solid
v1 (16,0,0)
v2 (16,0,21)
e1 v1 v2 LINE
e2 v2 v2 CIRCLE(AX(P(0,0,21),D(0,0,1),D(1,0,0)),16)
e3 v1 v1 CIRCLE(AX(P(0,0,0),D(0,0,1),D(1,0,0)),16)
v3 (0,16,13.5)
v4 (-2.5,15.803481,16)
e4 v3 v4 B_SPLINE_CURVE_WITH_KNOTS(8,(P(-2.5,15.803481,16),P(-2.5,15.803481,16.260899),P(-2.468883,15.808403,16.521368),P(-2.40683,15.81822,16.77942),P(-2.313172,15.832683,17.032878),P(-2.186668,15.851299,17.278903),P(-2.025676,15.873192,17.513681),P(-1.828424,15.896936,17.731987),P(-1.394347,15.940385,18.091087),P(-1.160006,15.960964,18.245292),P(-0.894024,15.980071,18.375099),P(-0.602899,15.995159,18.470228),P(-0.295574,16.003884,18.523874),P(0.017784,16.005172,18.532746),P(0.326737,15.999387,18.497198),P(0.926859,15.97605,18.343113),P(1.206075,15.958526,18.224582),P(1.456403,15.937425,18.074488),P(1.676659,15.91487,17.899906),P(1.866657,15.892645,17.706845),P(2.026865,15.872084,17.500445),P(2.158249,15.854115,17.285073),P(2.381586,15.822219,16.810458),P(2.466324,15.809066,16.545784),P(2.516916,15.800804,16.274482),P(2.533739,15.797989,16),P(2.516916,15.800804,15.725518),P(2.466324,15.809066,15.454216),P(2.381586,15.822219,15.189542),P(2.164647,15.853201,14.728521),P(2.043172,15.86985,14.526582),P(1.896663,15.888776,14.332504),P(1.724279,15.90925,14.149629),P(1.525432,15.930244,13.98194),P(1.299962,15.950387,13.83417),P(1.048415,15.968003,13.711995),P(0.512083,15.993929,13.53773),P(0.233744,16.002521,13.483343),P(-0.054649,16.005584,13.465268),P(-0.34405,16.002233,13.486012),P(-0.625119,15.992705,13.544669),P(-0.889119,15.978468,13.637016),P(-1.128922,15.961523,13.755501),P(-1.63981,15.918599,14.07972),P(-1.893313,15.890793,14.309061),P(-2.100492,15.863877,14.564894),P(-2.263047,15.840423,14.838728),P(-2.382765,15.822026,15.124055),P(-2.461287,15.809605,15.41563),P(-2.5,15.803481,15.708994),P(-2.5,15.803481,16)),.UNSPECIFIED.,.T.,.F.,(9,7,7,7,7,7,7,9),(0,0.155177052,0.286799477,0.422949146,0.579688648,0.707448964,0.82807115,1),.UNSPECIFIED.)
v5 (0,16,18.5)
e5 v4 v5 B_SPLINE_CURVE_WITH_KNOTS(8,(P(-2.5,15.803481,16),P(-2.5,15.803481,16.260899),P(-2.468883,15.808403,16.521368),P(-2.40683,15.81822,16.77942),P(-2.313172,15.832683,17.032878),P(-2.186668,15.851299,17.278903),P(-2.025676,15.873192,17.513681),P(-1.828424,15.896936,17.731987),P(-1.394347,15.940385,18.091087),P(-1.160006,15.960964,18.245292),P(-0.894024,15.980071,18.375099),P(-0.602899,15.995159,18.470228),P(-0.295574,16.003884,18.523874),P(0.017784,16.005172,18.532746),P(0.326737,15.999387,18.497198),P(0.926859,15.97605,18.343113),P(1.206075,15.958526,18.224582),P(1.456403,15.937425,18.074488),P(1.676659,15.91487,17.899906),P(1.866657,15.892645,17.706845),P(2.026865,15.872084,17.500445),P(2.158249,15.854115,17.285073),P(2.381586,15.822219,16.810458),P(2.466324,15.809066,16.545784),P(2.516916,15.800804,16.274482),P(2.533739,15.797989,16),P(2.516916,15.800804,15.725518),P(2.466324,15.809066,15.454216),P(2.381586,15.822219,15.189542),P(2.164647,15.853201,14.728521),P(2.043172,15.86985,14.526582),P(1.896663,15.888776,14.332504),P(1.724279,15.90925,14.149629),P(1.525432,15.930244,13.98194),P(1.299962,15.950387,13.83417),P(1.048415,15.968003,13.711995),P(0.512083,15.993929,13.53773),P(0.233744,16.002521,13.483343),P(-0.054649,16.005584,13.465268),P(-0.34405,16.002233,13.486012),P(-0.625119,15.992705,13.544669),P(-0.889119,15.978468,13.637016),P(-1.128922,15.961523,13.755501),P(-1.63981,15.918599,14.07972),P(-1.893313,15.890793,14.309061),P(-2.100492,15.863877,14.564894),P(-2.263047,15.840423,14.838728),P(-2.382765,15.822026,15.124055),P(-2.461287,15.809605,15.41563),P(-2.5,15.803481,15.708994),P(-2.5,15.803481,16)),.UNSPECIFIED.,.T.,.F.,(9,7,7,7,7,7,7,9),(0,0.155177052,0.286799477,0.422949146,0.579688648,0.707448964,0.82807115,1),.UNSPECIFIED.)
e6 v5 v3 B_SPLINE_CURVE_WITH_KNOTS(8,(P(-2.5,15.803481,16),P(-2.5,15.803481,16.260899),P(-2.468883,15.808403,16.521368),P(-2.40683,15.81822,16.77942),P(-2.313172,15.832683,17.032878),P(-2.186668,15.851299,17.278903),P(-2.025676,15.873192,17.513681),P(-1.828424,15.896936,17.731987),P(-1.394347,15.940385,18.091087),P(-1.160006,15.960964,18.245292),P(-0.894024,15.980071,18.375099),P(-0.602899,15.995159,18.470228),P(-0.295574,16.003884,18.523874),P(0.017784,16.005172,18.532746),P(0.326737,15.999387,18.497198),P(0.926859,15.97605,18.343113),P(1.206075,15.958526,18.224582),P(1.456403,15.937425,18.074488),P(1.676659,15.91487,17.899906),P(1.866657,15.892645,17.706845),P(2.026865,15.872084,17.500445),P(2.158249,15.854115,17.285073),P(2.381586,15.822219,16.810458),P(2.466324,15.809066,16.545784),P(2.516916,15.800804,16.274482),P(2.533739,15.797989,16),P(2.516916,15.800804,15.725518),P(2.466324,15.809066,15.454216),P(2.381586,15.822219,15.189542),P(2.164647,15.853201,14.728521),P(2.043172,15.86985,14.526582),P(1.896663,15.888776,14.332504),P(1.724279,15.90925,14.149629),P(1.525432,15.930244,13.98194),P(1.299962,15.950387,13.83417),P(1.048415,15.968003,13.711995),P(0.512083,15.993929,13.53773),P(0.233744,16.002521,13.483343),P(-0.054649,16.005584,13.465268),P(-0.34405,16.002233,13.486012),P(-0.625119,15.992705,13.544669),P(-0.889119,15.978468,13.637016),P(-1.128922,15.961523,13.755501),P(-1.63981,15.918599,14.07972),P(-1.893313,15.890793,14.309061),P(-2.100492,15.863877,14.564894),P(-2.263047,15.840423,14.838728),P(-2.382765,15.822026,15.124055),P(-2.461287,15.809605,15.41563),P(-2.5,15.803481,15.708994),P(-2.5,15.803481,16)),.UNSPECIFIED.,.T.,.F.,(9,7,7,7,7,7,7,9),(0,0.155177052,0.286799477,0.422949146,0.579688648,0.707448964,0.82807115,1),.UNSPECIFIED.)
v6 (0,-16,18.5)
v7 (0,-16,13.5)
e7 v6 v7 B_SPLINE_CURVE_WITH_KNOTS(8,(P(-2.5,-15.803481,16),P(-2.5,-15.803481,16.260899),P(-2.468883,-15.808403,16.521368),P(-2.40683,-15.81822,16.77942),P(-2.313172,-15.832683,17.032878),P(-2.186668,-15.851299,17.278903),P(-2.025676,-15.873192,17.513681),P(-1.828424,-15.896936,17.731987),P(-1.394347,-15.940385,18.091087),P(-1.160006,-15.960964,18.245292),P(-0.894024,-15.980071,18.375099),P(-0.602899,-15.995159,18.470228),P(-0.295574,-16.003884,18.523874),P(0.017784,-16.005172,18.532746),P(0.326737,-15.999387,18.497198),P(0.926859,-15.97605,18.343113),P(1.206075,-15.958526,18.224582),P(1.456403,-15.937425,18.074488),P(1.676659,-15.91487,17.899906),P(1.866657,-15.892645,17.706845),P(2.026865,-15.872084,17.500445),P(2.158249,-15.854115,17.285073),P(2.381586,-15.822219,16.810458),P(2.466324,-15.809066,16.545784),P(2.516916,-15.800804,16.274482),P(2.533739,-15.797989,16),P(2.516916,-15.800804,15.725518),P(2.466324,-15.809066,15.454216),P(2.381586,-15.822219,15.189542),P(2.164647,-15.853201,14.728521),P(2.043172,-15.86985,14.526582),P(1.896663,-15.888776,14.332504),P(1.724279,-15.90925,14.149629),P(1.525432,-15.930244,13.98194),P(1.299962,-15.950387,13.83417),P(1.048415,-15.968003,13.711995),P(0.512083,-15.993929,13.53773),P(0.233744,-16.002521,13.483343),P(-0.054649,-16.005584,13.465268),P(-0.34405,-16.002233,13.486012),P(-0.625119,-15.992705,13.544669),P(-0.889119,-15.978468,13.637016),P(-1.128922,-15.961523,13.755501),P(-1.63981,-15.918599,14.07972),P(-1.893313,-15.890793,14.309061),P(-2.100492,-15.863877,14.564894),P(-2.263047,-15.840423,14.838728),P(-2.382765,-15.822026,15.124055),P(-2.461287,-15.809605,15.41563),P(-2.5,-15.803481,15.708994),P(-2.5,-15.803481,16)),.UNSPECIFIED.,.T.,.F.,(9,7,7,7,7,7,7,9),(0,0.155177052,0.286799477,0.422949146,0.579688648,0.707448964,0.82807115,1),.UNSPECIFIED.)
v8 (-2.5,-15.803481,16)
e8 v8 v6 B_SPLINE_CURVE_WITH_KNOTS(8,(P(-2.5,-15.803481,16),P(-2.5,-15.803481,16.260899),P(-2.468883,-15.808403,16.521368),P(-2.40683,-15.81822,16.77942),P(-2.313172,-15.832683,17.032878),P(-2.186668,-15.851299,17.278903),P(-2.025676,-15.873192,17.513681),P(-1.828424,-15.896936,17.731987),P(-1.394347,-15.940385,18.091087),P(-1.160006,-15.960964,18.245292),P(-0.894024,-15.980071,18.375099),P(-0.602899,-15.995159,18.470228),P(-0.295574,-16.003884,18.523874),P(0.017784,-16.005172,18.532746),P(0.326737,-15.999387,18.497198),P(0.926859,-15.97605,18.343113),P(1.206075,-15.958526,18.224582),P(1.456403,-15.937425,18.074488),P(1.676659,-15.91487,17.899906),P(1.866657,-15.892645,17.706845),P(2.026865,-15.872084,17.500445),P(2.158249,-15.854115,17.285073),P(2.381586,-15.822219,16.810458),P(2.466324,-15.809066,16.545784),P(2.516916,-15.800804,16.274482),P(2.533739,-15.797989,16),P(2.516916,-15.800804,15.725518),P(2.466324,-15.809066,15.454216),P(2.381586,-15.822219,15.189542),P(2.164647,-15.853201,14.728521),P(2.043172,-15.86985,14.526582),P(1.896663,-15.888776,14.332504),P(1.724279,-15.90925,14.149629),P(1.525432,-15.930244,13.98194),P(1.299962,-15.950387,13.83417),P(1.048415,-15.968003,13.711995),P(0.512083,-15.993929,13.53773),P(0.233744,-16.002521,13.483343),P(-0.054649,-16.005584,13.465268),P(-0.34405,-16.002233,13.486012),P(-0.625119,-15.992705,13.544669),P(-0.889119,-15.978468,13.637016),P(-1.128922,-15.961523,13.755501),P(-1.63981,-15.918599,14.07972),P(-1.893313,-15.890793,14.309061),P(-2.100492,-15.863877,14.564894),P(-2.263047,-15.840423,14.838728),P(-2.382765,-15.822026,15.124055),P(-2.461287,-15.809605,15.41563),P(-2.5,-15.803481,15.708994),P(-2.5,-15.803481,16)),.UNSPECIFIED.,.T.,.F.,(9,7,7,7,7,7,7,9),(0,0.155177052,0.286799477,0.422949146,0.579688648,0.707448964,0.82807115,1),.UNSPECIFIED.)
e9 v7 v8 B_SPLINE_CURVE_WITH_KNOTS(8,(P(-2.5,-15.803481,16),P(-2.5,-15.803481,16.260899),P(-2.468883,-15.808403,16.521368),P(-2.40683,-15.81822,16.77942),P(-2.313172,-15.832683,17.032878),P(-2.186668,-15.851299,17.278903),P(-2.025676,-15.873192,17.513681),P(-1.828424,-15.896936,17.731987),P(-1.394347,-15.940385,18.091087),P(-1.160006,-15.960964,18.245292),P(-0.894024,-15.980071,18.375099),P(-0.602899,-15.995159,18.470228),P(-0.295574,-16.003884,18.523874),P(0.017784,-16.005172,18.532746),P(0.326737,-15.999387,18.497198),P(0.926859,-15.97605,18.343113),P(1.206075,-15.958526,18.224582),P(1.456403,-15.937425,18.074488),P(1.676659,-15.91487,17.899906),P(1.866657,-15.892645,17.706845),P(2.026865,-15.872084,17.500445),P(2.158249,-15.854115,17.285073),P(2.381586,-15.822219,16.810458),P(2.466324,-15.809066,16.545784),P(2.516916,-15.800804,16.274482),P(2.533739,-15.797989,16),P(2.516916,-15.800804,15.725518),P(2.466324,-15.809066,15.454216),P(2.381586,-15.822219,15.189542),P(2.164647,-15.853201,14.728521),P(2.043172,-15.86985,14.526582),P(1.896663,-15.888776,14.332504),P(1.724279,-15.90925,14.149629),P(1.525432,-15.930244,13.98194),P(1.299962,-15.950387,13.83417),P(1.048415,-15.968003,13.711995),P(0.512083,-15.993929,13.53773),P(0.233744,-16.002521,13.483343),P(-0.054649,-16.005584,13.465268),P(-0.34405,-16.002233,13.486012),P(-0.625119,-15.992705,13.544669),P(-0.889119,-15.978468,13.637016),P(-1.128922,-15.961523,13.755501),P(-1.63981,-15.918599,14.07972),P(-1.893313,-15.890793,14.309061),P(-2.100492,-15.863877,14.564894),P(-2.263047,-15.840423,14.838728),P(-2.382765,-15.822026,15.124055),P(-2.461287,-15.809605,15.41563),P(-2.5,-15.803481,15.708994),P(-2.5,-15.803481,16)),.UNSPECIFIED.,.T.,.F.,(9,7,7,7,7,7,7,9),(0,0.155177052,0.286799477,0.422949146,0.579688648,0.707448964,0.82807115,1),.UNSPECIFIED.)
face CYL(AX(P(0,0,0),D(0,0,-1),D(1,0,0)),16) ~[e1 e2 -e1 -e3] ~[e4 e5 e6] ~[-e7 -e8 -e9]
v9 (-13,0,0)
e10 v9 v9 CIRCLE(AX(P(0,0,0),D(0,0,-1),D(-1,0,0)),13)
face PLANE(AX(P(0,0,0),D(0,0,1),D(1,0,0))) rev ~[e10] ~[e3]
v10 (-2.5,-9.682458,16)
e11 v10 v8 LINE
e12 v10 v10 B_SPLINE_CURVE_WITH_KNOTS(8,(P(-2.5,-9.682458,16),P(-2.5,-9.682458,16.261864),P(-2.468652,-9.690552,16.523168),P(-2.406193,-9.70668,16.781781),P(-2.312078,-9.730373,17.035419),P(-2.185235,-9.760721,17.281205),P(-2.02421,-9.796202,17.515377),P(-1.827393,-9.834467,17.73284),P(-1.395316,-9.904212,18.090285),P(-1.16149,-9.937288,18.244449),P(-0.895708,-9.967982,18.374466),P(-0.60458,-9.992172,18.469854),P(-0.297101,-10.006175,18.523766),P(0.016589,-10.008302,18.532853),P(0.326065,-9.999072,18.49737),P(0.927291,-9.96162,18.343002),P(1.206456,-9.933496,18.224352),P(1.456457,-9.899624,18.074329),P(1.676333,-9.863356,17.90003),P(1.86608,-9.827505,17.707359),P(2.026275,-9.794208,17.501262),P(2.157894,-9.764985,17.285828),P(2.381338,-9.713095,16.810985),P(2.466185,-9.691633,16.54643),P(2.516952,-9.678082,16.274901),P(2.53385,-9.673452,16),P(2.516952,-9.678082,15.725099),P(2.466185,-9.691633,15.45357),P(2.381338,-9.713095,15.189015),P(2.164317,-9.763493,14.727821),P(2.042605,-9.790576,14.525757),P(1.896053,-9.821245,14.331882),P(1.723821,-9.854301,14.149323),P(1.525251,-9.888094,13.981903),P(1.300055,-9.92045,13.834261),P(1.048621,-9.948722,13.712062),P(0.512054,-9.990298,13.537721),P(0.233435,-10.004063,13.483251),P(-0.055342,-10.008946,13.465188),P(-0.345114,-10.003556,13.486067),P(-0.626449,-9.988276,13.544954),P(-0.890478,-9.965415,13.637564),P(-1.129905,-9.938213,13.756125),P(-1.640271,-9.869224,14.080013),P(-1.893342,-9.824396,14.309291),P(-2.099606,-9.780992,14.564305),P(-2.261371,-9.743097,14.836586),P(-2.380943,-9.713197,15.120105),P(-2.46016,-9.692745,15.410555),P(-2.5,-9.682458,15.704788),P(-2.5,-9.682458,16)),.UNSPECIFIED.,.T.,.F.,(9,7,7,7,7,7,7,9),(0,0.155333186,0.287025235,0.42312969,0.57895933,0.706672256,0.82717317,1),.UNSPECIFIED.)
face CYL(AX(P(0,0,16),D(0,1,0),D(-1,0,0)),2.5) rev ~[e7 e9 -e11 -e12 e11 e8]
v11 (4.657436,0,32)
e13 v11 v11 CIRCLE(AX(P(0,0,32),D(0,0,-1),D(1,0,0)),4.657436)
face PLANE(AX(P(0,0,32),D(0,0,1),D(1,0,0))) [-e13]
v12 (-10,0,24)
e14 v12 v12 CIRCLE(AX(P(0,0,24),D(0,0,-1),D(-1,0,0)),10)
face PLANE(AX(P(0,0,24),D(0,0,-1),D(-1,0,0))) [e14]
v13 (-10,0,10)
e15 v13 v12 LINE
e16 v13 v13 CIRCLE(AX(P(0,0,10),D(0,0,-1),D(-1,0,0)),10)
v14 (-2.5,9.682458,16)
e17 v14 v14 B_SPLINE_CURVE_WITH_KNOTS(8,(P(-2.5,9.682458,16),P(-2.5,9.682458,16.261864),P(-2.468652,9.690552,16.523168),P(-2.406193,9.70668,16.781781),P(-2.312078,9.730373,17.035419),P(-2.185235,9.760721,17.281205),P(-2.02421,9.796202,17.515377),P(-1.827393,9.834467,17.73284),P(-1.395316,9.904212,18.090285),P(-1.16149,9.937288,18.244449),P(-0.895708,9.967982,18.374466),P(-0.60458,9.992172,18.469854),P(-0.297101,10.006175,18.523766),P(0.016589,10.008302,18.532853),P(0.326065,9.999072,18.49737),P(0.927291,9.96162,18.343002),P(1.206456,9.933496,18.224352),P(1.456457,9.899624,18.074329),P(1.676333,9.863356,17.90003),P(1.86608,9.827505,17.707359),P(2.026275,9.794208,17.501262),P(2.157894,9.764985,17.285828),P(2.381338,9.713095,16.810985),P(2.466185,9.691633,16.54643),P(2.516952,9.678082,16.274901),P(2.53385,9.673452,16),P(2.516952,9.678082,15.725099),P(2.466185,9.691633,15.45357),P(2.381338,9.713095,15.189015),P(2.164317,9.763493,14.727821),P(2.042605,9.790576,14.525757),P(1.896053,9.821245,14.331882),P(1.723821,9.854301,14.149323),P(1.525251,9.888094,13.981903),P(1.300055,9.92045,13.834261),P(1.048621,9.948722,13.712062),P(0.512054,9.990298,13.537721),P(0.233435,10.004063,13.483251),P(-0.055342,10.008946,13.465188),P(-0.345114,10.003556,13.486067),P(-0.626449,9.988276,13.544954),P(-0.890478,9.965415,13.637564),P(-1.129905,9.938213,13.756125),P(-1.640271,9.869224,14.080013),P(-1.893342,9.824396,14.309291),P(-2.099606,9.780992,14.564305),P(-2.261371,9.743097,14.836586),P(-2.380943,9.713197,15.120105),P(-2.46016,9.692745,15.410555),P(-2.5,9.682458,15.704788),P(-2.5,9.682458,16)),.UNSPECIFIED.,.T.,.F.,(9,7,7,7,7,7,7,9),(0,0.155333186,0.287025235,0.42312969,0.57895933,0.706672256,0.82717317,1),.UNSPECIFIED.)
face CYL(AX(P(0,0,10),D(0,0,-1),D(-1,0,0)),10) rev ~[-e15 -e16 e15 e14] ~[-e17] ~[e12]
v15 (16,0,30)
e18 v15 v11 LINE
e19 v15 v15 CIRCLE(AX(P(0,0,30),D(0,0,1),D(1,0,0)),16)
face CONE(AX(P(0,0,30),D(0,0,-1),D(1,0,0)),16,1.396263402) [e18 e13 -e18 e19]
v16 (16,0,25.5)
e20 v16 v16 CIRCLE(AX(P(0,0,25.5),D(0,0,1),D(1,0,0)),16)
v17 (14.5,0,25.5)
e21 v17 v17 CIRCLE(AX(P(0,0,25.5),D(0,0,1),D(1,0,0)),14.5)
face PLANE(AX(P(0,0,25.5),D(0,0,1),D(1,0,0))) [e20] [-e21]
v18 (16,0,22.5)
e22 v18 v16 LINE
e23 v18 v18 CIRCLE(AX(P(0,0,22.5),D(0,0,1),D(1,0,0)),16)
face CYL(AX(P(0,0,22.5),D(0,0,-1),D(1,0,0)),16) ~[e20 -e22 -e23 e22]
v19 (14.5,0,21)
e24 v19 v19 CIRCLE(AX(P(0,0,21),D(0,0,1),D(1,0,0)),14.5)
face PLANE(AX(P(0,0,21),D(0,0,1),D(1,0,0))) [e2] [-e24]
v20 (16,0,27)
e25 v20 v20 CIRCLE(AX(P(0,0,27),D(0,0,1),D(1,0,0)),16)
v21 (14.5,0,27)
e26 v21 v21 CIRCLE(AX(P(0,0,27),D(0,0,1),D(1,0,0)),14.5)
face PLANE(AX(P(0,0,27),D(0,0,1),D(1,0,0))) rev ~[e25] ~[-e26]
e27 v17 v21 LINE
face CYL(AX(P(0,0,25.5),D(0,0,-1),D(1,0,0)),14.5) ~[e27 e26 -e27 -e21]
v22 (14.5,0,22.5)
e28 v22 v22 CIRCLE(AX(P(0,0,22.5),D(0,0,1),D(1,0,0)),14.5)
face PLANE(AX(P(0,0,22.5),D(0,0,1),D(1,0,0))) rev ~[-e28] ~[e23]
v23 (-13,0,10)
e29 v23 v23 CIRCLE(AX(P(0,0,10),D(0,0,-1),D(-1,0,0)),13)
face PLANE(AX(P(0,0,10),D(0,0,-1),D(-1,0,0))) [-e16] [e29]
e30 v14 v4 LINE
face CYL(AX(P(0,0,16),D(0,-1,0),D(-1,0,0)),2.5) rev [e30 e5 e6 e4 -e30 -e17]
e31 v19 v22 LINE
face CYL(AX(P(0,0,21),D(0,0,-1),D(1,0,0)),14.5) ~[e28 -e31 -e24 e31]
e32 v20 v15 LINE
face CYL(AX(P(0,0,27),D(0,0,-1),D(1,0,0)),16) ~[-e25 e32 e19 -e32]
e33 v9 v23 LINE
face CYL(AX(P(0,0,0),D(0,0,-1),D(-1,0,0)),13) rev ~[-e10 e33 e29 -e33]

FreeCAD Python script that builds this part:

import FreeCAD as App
import Part
import Sketcher
Q = App.Units.Quantity

doc = App.newDocument("Part")
body = doc.addObject("PartDesign::Body", "Body")

sketch1 = doc.addObject("Sketcher::SketchObject", "Sketch")
body.addObject(sketch1)
sketch1.AttachmentSupport = (doc.XY_Plane, [""])
sketch1.MapMode = "FlatFace"
sketch1.addGeometry(Part.Circle(App.Vector(0, 0, 0), App.Vector(0, 0, 1), 16), False)
sketch1.addConstraint([
    Sketcher.Constraint("Coincident", 0, 3, -1, 1),
    Sketcher.Constraint("Diameter", 0, Q("32 mm")),
])
pad1 = doc.addObject("PartDesign::Pad", "Pad")
body.addObject(pad1)
pad1.Profile = sketch1
pad1.Length = 21

sketch2 = doc.addObject("Sketcher::SketchObject", "Sketch001")
body.addObject(sketch2)
sketch2.AttachmentSupport = (doc.XY_Plane, [""])
sketch2.MapMode = "FlatFace"
sketch2.AttachmentOffset = App.Placement(App.Vector(0, 0, 21), App.Rotation())
sketch2.addGeometry(Part.Circle(App.Vector(0, 0, 0), App.Vector(0, 0, 1), 14.5), False)
sketch2.addConstraint([
    Sketcher.Constraint("Coincident", 0, 3, -1, 1),
    Sketcher.Constraint("Diameter", 0, Q("29 mm")),
])
pad2 = doc.addObject("PartDesign::Pad", "Pad001")
body.addObject(pad2)
pad2.Profile = sketch2
pad2.Length = 1.5

sketch3 = doc.addObject("Sketcher::SketchObject", "Sketch002")
body.addObject(sketch3)
sketch3.AttachmentSupport = (doc.XY_Plane, [""])
sketch3.MapMode = "FlatFace"
sketch3.AttachmentOffset = App.Placement(App.Vector(0, 0, 22.5), App.Rotation())
sketch3.addGeometry(Part.Circle(App.Vector(0, 0, 0), App.Vector(0, 0, 1), 16), False)
sketch3.addConstraint([
    Sketcher.Constraint("Coincident", 0, 3, -1, 1),
    Sketcher.Constraint("Diameter", 0, Q("32 mm")),
])
pad3 = doc.addObject("PartDesign::Pad", "Pad002")
body.addObject(pad3)
pad3.Profile = sketch3
pad3.Length = 3

sketch4 = doc.addObject("Sketcher::SketchObject", "Sketch003")
body.addObject(sketch4)
sketch4.AttachmentSupport = (doc.XY_Plane, [""])
sketch4.MapMode = "FlatFace"
sketch4.AttachmentOffset = App.Placement(App.Vector(0, 0, 25.5), App.Rotation())
sketch4.addGeometry(Part.Circle(App.Vector(0, 0, 0), App.Vector(0, 0, 1), 14.5), False)
sketch4.addConstraint([
    Sketcher.Constraint("Coincident", 0, 3, -1, 1),
    Sketcher.Constraint("Diameter", 0, Q("29 mm")),
])
pad4 = doc.addObject("PartDesign::Pad", "Pad003")
body.addObject(pad4)
pad4.Profile = sketch4
pad4.Length = 1.5

sketch5 = doc.addObject("Sketcher::SketchObject", "Sketch004")
body.addObject(sketch5)
sketch5.AttachmentSupport = (doc.XY_Plane, [""])
sketch5.MapMode = "FlatFace"
sketch5.AttachmentOffset = App.Placement(App.Vector(0, 0, 27), App.Rotation())
sketch5.addGeometry(Part.Circle(App.Vector(0, 0, 0), App.Vector(0, 0, 1), 16), False)
sketch5.addConstraint([
    Sketcher.Constraint("Coincident", 0, 3, -1, 1),
    Sketcher.Constraint("Diameter", 0, Q("32 mm")),
])
pad5 = doc.addObject("PartDesign::Pad", "Pad004")
body.addObject(pad5)
pad5.Profile = sketch5
pad5.Length = 3

sketch6 = doc.addObject("Sketcher::SketchObject", "Sketch005")
body.addObject(sketch6)
sketch6.AttachmentSupport = (doc.XY_Plane, [""])
sketch6.MapMode = "FlatFace"
sketch6.AttachmentOffset = App.Placement(App.Vector(0, 0, 30), App.Rotation())
sketch6.addGeometry(Part.Circle(App.Vector(0, 0, 0), App.Vector(0, 0, 1), 16), False)
sketch6.addConstraint([
    Sketcher.Constraint("Coincident", 0, 3, -1, 1),
    Sketcher.Constraint("Diameter", 0, Q("32 mm")),
])
pad6 = doc.addObject("PartDesign::Pad", "Pad005")
body.addObject(pad6)
pad6.Profile = sketch6
pad6.Length = 2
pad6.TaperAngle = -80

sketch7 = doc.addObject("Sketcher::SketchObject", "Sketch006")
body.addObject(sketch7)
sketch7.AttachmentSupport = (doc.XY_Plane, [""])
sketch7.MapMode = "FlatFace"
sketch7.addGeometry(Part.Circle(App.Vector(0, 0, 0), App.Vector(0, 0, 1), 13), False)
sketch7.addConstraint([
    Sketcher.Constraint("Coincident", 0, 3, -1, 1),
    Sketcher.Constraint("Diameter", 0, Q("26 mm")),
])
pocket1 = doc.addObject("PartDesign::Pocket", "Pocket")
body.addObject(pocket1)
pocket1.Profile = sketch7
pocket1.Length = 10
pocket1.Reversed = True

sketch8 = doc.addObject("Sketcher::SketchObject", "Sketch007")
body.addObject(sketch8)
sketch8.AttachmentSupport = (doc.XY_Plane, [""])
sketch8.MapMode = "FlatFace"
sketch8.AttachmentOffset = App.Placement(App.Vector(0, 0, 10), App.Rotation())
sketch8.addGeometry(Part.Circle(App.Vector(0, 0, 0), App.Vector(0, 0, 1), 10), False)
sketch8.addConstraint([
    Sketcher.Constraint("Coincident", 0, 3, -1, 1),
    Sketcher.Constraint("Diameter", 0, Q("20 mm")),
])
pocket2 = doc.addObject("PartDesign::Pocket", "Pocket001")
body.addObject(pocket2)
pocket2.Profile = sketch8
pocket2.Length = 14
pocket2.Reversed = True

sketch9 = doc.addObject("Sketcher::SketchObject", "Sketch008")
body.addObject(sketch9)
sketch9.AttachmentSupport = (doc.XZ_Plane, [""])
sketch9.MapMode = "FlatFace"
sketch9.addGeometry(Part.Circle(App.Vector(0, 16, 0), App.Vector(0, 0, 1), 2.5), False)
sketch9.addConstraint([
    Sketcher.Constraint("PointOnObject", 0, 3, -2),
    Sketcher.Constraint("Diameter", 0, Q("5 mm")),
    Sketcher.Constraint("DistanceY", -1, 1, 0, 3, Q("16 mm")),
])
pocket3 = doc.addObject("PartDesign::Pocket", "Pocket002")
body.addObject(pocket3)
pocket3.Profile = sketch9
pocket3.Length = 32
pocket3.Midplane = True

doc.recompute()
